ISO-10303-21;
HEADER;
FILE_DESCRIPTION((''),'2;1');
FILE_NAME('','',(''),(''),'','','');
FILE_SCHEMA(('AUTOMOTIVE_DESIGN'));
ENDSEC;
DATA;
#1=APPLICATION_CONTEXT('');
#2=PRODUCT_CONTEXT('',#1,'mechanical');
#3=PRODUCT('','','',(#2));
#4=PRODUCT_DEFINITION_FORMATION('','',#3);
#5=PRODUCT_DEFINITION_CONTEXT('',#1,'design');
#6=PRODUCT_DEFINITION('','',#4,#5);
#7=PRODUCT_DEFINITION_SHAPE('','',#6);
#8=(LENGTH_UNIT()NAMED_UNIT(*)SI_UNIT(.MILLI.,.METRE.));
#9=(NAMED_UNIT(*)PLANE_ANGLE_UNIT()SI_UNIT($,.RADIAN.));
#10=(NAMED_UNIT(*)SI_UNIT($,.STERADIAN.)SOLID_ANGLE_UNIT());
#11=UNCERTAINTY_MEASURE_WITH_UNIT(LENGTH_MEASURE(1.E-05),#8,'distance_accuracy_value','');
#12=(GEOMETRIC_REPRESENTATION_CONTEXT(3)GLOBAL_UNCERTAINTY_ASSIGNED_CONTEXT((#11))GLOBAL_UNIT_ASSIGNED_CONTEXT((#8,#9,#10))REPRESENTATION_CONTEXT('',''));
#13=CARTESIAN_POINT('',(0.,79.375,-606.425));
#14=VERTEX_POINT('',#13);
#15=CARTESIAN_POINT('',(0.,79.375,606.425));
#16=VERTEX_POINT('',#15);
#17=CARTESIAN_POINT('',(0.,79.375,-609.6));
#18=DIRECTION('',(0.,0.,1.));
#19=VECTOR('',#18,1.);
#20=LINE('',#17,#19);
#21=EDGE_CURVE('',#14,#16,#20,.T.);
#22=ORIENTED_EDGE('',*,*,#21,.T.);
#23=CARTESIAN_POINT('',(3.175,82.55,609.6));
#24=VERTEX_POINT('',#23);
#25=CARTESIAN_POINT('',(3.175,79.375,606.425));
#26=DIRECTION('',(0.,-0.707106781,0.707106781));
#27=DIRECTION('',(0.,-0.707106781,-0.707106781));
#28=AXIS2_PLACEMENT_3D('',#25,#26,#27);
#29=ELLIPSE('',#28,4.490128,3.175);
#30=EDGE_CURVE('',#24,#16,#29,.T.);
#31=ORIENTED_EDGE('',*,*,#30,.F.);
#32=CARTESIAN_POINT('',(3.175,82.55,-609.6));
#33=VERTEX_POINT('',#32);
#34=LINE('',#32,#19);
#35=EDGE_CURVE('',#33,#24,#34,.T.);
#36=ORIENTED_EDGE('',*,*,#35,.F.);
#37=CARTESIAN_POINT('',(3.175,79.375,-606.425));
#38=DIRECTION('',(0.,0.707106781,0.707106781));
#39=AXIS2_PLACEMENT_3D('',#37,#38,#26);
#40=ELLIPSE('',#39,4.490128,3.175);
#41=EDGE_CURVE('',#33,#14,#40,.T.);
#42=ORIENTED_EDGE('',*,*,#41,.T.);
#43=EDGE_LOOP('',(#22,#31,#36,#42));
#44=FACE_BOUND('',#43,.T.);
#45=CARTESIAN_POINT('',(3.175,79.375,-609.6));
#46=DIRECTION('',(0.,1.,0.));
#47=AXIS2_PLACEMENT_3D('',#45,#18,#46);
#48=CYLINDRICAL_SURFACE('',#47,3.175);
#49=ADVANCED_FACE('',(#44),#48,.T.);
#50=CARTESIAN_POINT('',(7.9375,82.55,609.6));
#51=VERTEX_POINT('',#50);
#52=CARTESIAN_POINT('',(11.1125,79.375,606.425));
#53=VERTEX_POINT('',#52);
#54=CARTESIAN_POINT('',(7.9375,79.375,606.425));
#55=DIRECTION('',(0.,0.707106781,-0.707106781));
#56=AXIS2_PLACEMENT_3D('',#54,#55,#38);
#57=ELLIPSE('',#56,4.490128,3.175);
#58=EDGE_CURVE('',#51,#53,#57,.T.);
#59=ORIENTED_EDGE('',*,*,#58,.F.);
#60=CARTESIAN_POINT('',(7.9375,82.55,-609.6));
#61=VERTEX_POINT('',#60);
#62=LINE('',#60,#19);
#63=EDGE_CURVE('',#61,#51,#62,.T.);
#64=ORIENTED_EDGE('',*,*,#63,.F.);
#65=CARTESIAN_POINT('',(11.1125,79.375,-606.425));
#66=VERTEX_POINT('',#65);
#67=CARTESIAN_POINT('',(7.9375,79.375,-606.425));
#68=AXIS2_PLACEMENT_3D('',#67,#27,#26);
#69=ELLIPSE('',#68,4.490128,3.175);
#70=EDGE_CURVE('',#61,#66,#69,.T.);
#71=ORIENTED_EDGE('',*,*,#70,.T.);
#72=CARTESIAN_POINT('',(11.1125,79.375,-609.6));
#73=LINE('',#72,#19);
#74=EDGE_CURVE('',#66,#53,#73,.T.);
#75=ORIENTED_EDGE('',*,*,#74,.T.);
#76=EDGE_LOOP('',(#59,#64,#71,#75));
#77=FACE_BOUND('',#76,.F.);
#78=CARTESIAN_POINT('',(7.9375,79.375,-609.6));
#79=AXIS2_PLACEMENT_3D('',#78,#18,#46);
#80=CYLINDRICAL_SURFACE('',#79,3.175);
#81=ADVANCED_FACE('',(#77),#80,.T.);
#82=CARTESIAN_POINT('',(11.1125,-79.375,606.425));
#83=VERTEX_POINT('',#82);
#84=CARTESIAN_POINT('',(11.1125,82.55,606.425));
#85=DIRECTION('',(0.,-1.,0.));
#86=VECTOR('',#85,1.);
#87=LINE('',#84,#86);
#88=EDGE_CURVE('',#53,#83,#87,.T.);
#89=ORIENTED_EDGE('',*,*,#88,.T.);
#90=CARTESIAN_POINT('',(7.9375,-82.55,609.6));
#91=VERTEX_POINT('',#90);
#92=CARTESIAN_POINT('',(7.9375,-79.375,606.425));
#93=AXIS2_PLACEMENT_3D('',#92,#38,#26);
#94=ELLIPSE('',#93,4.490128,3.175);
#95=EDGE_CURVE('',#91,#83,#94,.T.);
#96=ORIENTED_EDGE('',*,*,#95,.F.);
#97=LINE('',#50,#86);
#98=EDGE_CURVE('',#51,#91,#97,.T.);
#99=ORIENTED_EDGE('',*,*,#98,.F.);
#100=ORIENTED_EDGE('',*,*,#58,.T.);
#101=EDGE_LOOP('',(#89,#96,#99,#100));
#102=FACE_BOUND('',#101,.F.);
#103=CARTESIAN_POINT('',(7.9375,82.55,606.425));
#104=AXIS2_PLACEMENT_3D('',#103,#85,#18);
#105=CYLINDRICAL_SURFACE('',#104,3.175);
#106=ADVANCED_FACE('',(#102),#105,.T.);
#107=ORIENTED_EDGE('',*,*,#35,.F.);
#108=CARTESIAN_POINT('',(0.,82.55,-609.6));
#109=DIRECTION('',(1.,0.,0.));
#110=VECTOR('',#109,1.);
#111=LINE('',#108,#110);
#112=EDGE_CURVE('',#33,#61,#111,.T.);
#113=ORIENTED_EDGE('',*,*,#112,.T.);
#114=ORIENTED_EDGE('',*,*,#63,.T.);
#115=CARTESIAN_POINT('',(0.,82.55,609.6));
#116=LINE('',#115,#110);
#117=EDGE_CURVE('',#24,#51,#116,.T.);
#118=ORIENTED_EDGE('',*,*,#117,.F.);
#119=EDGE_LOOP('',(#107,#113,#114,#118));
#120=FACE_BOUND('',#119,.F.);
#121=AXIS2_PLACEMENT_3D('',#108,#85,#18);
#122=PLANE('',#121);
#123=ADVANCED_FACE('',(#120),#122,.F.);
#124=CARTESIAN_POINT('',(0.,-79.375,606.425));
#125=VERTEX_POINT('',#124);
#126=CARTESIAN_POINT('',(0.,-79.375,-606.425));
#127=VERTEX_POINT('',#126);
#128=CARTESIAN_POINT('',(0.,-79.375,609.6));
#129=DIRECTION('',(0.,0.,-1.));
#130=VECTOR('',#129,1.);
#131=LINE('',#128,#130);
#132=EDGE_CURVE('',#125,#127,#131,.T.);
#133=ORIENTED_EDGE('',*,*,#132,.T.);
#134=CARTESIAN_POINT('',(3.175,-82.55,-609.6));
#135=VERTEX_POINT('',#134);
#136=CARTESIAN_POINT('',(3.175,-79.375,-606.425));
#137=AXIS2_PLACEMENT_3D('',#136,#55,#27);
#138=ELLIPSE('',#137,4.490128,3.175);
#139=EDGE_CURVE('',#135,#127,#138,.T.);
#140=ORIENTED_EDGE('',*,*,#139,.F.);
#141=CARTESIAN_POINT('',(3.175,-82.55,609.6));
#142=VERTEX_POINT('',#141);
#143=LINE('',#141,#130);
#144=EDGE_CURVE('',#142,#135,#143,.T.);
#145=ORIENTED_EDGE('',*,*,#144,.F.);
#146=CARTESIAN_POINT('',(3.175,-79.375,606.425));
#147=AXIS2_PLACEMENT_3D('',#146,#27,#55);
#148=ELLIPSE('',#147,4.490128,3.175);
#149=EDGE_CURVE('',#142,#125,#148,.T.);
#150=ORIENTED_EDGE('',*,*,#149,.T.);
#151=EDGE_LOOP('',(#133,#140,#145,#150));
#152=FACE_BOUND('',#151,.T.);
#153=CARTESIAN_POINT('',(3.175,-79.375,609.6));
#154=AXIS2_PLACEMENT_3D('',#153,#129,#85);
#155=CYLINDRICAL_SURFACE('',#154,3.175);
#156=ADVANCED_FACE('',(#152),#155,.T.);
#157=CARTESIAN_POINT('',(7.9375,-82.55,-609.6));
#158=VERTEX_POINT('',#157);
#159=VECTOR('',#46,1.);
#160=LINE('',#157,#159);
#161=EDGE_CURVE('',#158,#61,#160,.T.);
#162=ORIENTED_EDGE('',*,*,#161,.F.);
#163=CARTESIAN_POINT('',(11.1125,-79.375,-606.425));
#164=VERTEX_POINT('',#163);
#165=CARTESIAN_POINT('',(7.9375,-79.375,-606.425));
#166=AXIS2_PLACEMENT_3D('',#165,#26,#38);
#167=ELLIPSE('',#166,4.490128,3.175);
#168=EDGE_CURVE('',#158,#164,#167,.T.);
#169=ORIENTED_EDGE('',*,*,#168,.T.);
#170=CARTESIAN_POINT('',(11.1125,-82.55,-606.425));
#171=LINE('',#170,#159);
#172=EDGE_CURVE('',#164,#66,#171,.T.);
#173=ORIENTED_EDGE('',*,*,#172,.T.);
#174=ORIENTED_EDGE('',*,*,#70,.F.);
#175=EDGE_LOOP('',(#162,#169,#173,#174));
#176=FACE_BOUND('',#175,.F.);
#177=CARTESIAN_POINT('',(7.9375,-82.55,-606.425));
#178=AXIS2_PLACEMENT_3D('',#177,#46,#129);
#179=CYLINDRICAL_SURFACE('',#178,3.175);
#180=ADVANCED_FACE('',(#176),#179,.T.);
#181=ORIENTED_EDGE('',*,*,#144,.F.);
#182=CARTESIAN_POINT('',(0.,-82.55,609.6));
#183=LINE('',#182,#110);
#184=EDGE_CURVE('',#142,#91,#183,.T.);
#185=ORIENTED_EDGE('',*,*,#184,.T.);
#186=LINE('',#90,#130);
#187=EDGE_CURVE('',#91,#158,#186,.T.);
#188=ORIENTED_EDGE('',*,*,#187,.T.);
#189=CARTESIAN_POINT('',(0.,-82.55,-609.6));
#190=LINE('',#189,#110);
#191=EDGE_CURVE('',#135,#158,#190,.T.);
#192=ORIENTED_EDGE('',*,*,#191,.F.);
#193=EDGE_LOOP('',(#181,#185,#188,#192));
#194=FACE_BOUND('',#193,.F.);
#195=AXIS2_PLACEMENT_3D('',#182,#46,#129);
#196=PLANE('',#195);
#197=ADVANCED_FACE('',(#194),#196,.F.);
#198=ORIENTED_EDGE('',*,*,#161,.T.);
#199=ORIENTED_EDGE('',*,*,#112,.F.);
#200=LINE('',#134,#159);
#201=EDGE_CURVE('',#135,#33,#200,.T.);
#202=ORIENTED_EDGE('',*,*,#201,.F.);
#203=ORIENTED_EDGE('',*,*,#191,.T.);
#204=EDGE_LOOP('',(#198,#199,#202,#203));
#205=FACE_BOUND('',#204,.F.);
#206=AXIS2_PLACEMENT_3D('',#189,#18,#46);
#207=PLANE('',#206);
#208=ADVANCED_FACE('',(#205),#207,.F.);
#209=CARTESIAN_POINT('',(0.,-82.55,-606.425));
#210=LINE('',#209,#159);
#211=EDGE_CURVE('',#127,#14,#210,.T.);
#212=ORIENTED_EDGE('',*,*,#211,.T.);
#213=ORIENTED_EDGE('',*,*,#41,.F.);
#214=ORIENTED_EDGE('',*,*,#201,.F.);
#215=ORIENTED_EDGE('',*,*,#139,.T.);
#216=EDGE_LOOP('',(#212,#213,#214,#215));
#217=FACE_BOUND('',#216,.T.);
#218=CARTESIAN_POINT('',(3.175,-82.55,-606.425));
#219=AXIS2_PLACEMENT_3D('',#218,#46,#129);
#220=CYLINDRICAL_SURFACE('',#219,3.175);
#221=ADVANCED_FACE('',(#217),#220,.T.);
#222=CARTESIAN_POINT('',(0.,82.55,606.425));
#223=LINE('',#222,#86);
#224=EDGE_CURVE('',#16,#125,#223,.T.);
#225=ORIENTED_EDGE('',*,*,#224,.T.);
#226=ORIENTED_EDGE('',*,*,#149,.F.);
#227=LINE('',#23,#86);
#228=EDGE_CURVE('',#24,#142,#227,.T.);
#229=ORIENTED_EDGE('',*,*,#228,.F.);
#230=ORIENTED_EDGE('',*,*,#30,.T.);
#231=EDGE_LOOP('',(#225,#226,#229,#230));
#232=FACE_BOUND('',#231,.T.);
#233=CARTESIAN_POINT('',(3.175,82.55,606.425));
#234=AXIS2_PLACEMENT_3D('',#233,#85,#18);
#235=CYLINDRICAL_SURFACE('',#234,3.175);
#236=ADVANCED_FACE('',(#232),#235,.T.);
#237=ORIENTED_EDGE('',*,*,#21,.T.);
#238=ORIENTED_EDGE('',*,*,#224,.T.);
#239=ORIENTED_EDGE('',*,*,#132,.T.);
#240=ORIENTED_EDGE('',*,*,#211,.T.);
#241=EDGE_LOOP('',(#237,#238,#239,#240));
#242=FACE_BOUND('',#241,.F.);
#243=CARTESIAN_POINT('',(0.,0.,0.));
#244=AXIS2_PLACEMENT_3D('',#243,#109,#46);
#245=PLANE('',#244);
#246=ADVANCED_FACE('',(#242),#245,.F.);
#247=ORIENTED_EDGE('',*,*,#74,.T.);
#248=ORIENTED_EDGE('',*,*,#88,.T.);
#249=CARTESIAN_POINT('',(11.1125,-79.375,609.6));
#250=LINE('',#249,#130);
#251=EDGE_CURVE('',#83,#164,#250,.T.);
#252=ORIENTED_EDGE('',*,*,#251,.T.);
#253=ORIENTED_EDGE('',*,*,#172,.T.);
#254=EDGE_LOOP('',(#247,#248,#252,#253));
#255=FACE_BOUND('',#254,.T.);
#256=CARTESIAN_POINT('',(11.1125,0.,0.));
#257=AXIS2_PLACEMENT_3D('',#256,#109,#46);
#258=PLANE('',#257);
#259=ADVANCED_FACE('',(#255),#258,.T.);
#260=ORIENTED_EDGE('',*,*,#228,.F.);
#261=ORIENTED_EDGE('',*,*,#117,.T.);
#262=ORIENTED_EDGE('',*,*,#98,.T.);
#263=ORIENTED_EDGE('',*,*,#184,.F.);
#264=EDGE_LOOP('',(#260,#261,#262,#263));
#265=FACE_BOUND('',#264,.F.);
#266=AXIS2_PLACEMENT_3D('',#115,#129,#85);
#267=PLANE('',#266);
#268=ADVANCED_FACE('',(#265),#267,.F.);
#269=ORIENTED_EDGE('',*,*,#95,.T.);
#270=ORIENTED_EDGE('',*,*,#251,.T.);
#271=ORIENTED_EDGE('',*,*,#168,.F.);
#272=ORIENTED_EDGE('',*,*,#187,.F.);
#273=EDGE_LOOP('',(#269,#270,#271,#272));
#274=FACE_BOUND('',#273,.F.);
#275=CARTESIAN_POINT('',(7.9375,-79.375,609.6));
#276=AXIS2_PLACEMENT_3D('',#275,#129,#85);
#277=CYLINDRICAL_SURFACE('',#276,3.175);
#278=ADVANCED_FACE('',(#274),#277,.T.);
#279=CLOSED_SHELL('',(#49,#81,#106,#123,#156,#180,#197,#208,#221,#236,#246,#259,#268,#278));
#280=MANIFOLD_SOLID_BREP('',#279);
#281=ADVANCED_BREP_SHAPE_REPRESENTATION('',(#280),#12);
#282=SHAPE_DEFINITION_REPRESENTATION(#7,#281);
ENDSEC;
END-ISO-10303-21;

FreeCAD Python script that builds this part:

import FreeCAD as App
import Part
import Sketcher

V = App.Vector
Q = App.Units.Quantity


def edges_at(feature, points):
    """Names of the edges that pass closest to the given points."""
    edges = feature.Shape.Edges
    near = lambda p: min(range(len(edges)), key=lambda i: edges[i].distToShape(Part.Vertex(*p))[0])
    return sorted({f"Edge{near(p) + 1}" for p in points})

doc = App.newDocument("Part")
body = doc.addObject("PartDesign::Body", "Body")

# Sketch on YZ plane
sketch1 = doc.addObject("Sketcher::SketchObject", "Sketch")
body.addObject(sketch1)
sketch1.AttachmentSupport = (doc.YZ_Plane, [""])
sketch1.MapMode = "FlatFace"
sketch1.addGeometry(Part.LineSegment(V(83, 610, 0), V(-83, 610, 0)), False)
sketch1.addGeometry(Part.LineSegment(V(-83, 610, 0), V(-83, -610, 0)), False)
sketch1.addGeometry(Part.LineSegment(V(-83, -610, 0), V(83, -610, 0)), False)
sketch1.addGeometry(Part.LineSegment(V(83, -610, 0), V(83, 610, 0)), False)
sketch1.addConstraint(Sketcher.Constraint("Coincident", 0, 2, 1, 1))
sketch1.addConstraint(Sketcher.Constraint("Coincident", 1, 2, 2, 1))
sketch1.addConstraint(Sketcher.Constraint("Coincident", 2, 2, 3, 1))
sketch1.addConstraint(Sketcher.Constraint("Coincident", 3, 2, 0, 1))
sketch1.addConstraint(Sketcher.Constraint("Horizontal", 0))
sketch1.addConstraint(Sketcher.Constraint("Vertical", 1))
sketch1.addConstraint(Sketcher.Constraint("Horizontal", 2))
sketch1.addConstraint(Sketcher.Constraint("Vertical", 3))
sketch1.addConstraint(Sketcher.Constraint("Symmetric", 0, 2, 2, 2, -1, 1))
sketch1.addConstraint(Sketcher.Constraint("DistanceY", 1, 2, 1, 1, Q("48 in")))
sketch1.addConstraint(Sketcher.Constraint("DistanceX", 0, 2, 0, 1, Q("6.5 in")))
pad1 = doc.addObject("PartDesign::Pad", "Pad")
body.addObject(pad1)
pad1.Profile = sketch1
pad1.Length = Q("0.4375 in")
doc.recompute()

fillet = doc.addObject("PartDesign::Fillet", "Fillet")
body.addObject(fillet)
fillet.Base = (pad1, edges_at(pad1, [
    (11.113, 82.55, 0),
    (11.113, 0, 609.6),
    (0, -82.55, 0),
    (11.113, 0, -609.6),
    (11.113, -82.55, 0),
    (0, 0, 609.6),
    (0, 82.55, 0),
    (0, 0, -609.6),
]))
fillet.Radius = Q("0.125 in")

doc.recompute()
